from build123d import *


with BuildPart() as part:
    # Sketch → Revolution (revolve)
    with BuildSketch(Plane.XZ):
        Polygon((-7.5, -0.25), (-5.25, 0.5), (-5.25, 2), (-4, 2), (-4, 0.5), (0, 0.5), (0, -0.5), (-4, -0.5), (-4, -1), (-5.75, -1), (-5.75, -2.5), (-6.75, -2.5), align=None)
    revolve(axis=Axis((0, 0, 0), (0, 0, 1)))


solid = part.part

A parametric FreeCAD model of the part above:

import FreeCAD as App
import Part
import Sketcher

doc = App.newDocument("Part")
body = doc.addObject("PartDesign::Body", "Body")

sketch1 = body.newObject("Sketcher::SketchObject", "Sketch")
sketch1.AttachmentSupport = (doc.getObject("XZ_Plane"), [""])
sketch1.MapMode = "FlatFace"
sketch1.addGeometry([
    Part.LineSegment(App.Vector(-5.25, 0.5, 0), App.Vector(-7.5, -0.25, 0)),
    Part.LineSegment(App.Vector(-7.5, -0.25, 0), App.Vector(-6.75, -2.5, 0)),
    Part.LineSegment(App.Vector(-6.75, -2.5, 0), App.Vector(-5.75, -2.5, 0)),
    Part.LineSegment(App.Vector(-5.75, -2.5, 0), App.Vector(-5.75, -1, 0)),
    Part.LineSegment(App.Vector(-5.75, -1, 0), App.Vector(-4, -1, 0)),
    Part.LineSegment(App.Vector(-4, -1, 0), App.Vector(-4, -0.5, 0)),
    Part.LineSegment(App.Vector(-4, -0.5, 0), App.Vector(0, -0.5, 0)),
    Part.LineSegment(App.Vector(0, -0.5, 0), App.Vector(0, 0.5, 0)),
    Part.LineSegment(App.Vector(0, 0.5, 0), App.Vector(-4, 0.5, 0)),
    Part.LineSegment(App.Vector(-4, 0.5, 0), App.Vector(-4, 2, 0)),
    Part.LineSegment(App.Vector(-4, 2, 0), App.Vector(-5.25, 2, 0)),
    Part.LineSegment(App.Vector(-5.25, 2, 0), App.Vector(-5.25, 0.5, 0)),
], False)
sketch1.addConstraint([
    Sketcher.Constraint("Coincident", 0, 2, 1, 1),
    Sketcher.Constraint("Coincident", 1, 2, 2, 1),
    Sketcher.Constraint("Coincident", 2, 2, 3, 1),
    Sketcher.Constraint("Coincident", 3, 2, 4, 1),
    Sketcher.Constraint("Coincident", 4, 2, 5, 1),
    Sketcher.Constraint("Coincident", 5, 2, 6, 1),
    Sketcher.Constraint("Coincident", 6, 2, 7, 1),
    Sketcher.Constraint("Coincident", 7, 2, 8, 1),
    Sketcher.Constraint("Coincident", 8, 2, 9, 1),
    Sketcher.Constraint("Coincident", 9, 2, 10, 1),
    Sketcher.Constraint("Coincident", 10, 2, 11, 1),
    Sketcher.Constraint("Coincident", 11, 2, 0, 1),
    Sketcher.Constraint("Horizontal", 2),
    Sketcher.Constraint("Vertical", 3),
    Sketcher.Constraint("Horizontal", 4),
    Sketcher.Constraint("Vertical", 5),
    Sketcher.Constraint("Horizontal", 6),
    Sketcher.Constraint("Vertical", 7),
    Sketcher.Constraint("Horizontal", 8),
    Sketcher.Constraint("Vertical", 9),
    Sketcher.Constraint("Horizontal", 10),
    Sketcher.Constraint("Vertical", 11),
    Sketcher.Constraint("Symmetric", 6, 2, 7, 2, -1, 1),
    Sketcher.Constraint("Perpendicular", 0, 1),
    Sketcher.Constraint("Horizontal", 8, 2, 11, 2),
    Sketcher.Constraint("Vertical", 5, 2, 8, 2),
    Sketcher.Constraint("Equal", 2, 7),
    Sketcher.Constraint("Equal", 3, 9),
    Sketcher.Constraint("Equal", 0, 1),
    Sketcher.Constraint("DistanceX", 2, 1, 2, 2, 1.0),
    Sketcher.Constraint("DistanceX", 6, 1, 6, 2, 4.0),
    Sketcher.Constraint("DistanceY", 3, 1, 3, 2, 1.5),
    Sketcher.Constraint("DistanceY", 5, 1, 5, 2, 0.5),
    Sketcher.Constraint("DistanceX", 4, 1, 4, 2, 1.75),
    Sketcher.Constraint("DistanceX", 10, 2, 10, 1, 1.25),
])
revolution = body.newObject("PartDesign::Revolution", "Revolution")
revolution.Profile = sketch1
revolution.ReferenceAxis = (sketch1, ["V_Axis"])
revolution.Angle = 360

doc.recompute()
